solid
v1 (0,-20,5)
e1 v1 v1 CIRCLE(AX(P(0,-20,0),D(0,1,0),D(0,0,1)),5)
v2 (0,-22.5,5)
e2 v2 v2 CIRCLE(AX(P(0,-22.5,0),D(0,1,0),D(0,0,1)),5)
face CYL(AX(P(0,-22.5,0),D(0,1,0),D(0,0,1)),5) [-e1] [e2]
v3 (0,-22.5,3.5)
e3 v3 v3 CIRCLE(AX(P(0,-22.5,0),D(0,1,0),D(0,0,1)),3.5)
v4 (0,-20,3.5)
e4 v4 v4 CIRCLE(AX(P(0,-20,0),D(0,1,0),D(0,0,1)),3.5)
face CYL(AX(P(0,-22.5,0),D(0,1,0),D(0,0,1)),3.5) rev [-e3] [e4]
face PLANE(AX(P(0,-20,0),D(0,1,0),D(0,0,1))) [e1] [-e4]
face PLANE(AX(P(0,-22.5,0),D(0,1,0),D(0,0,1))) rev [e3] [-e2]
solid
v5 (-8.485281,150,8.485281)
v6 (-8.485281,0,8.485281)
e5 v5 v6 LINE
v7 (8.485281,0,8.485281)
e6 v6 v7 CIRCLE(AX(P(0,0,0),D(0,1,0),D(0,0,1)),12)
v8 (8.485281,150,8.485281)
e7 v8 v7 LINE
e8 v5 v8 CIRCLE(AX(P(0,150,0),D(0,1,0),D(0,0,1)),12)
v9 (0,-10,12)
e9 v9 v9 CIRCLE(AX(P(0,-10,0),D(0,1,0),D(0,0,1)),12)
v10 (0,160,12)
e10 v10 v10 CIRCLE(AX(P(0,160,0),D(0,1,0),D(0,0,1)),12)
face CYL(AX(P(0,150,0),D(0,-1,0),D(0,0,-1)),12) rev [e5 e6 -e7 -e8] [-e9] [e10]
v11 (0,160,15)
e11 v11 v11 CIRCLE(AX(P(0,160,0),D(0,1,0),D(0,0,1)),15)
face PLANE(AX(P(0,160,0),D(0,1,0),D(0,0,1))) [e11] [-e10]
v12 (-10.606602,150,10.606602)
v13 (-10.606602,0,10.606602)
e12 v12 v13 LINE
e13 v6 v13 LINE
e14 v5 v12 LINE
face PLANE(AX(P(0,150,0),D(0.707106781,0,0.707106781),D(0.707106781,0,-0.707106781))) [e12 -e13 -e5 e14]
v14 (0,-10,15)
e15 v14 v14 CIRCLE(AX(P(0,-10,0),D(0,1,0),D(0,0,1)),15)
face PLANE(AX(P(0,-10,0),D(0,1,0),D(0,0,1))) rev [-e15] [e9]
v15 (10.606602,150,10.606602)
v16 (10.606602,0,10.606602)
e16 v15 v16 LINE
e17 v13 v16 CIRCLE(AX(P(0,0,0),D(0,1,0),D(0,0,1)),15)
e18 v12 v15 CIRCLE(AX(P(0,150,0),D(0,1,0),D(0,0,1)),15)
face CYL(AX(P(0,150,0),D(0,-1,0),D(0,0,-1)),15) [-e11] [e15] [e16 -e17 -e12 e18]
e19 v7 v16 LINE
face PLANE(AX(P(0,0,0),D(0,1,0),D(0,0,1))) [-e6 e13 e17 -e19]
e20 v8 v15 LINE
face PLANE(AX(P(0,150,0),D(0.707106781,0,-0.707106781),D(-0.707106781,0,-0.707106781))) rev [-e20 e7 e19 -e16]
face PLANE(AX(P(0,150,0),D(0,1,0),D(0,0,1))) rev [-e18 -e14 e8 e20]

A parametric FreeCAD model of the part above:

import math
import FreeCAD as App
import Part
import Sketcher
from FreeCAD import Vector

doc = App.newDocument("Part")
body = doc.addObject("PartDesign::Body", "Body")

# Sketch on XZ plane
sketch1 = body.newObject("Sketcher::SketchObject", "Sketch")
sketch1.AttachmentSupport = (doc.getObject("XZ_Plane"), [""])
sketch1.MapMode = "FlatFace"
sketch1.addGeometry([
    Part.LineSegment(Vector(-10.606602, 10.606602, 0), Vector(-8.485281, 8.485281, 0)),  # 0
    Part.ArcOfCircle(Part.Circle(Vector(0, 0, 0), Vector(0, 0, 1), 12), math.radians(135), math.radians(360)),  # 1
    Part.ArcOfCircle(Part.Circle(Vector(0, 0, 0), Vector(0, 0, 1), 12), math.radians(0), math.radians(45)),  # 2
    Part.LineSegment(Vector(8.485281, 8.485281, 0), Vector(10.606602, 10.606602, 0)),  # 3
    Part.ArcOfCircle(Part.Circle(Vector(0, 0, 0), Vector(0, 0, 1), 15), math.radians(0), math.radians(45)),  # 4
    Part.ArcOfCircle(Part.Circle(Vector(0, 0, 0), Vector(0, 0, 1), 15), math.radians(135), math.radians(360)),  # 5
], False)
sketch1.addConstraint([
    Sketcher.Constraint("Coincident", 0, 2, 1, 1),
    Sketcher.Constraint("Tangent", 1, 2, 2, 1),
    Sketcher.Constraint("Coincident", 2, 2, 3, 1),
    Sketcher.Constraint("Coincident", 3, 2, 4, 2),
    Sketcher.Constraint("Tangent", 4, 1, 5, 2),
    Sketcher.Constraint("Coincident", 5, 1, 0, 1),
    Sketcher.Constraint("Coincident", 1, 3, -1, 1),
    Sketcher.Constraint("Coincident", 4, 3, -1, 1),
    Sketcher.Constraint("Equal", 1, 2),
    Sketcher.Constraint("Equal", 4, 5),
    Sketcher.Constraint("PointOnObject", 1, 2, -1),
    Sketcher.Constraint("PointOnObject", 4, 1, -1),
    Sketcher.Constraint("Perpendicular", 0, 3),
    Sketcher.Constraint("Horizontal", 0, 2, 2, 2),
    Sketcher.Constraint("Horizontal", 3, 2, 5, 1),
    Sketcher.Constraint("Radius", 1, 12.0),
    Sketcher.Constraint("Radius", 4, 15.0),
    Sketcher.Constraint("DistanceX", -1, 1, 3, 2, 10.606602),
])
pad1 = body.newObject("PartDesign::Pad", "Pad")
pad1.Profile = sketch1
pad1.Length = 150
pad1.Reversed = True

# Sketch on XZ plane
sketch2 = body.newObject("Sketcher::SketchObject", "Sketch001")
sketch2.AttachmentSupport = (doc.getObject("XZ_Plane"), [""])
sketch2.MapMode = "FlatFace"
sketch2.addGeometry([
    Part.ArcOfCircle(Part.Circle(Vector(0, 0, 0), Vector(0, 0, 1), 15), math.radians(45), math.radians(135)),  # 0
    Part.ArcOfCircle(Part.Circle(Vector(0, 0, 0), Vector(0, 0, 1), 15), math.radians(0), math.radians(45)),  # 1
    Part.ArcOfCircle(Part.Circle(Vector(0, 0, 0), Vector(0, 0, 1), 15), math.radians(135), math.radians(360)),  # 2
    Part.ArcOfCircle(Part.Circle(Vector(0, 0, 0), Vector(0, 0, 1), 12), math.radians(45), math.radians(135)),  # 3
    Part.ArcOfCircle(Part.Circle(Vector(0, 0, 0), Vector(0, 0, 1), 12), math.radians(135), math.radians(360)),  # 4
    Part.ArcOfCircle(Part.Circle(Vector(0, 0, 0), Vector(0, 0, 1), 12), math.radians(0), math.radians(45)),  # 5
], False)
sketch2.addConstraint([
    Sketcher.Constraint("Tangent", 0, 1, 1, 2),
    Sketcher.Constraint("Tangent", 1, 1, 2, 2),
    Sketcher.Constraint("Tangent", 2, 1, 0, 2),
    Sketcher.Constraint("Tangent", 3, 2, 4, 1),
    Sketcher.Constraint("Tangent", 4, 2, 5, 1),
    Sketcher.Constraint("Tangent", 5, 2, 3, 1),
    Sketcher.Constraint("Coincident", 0, 3, -1, 1),
    Sketcher.Constraint("Coincident", 3, 3, -1, 1),
    Sketcher.Constraint("PointOnObject", 1, 1, -1),
    Sketcher.Constraint("PointOnObject", 4, 2, -1),
    Sketcher.Constraint("Horizontal", 0, 1, 2, 1),
    Sketcher.Constraint("Horizontal", 3, 2, 5, 2),
    Sketcher.Constraint("Radius", 0, 15.0),
    Sketcher.Constraint("Radius", 3, 12.0),
    Sketcher.Constraint("DistanceX", -1, 1, 0, 1, 10.606602),
    Sketcher.Constraint("DistanceX", 3, 2, -1, 1, 8.485281),
])
pad2 = body.newObject("PartDesign::Pad", "Pad001")
pad2.Profile = sketch2
pad2.Length = 10

# Sketch on XZ plane
sketch3 = body.newObject("Sketcher::SketchObject", "Sketch002")
sketch3.AttachmentSupport = (doc.getObject("XZ_Plane"), [""])
sketch3.MapMode = "FlatFace"
sketch3.AttachmentOffset = App.Placement(Vector(0, 0, -150), App.Rotation())
sketch3.addGeometry([
    Part.ArcOfCircle(Part.Circle(Vector(0, 0, 0), Vector(0, 0, 1), 15), math.radians(45), math.radians(135)),  # 0
    Part.ArcOfCircle(Part.Circle(Vector(0, 0, 0), Vector(0, 0, 1), 15), math.radians(0), math.radians(45)),  # 1
    Part.ArcOfCircle(Part.Circle(Vector(0, 0, 0), Vector(0, 0, 1), 15), math.radians(135), math.radians(360)),  # 2
    Part.ArcOfCircle(Part.Circle(Vector(0, 0, 0), Vector(0, 0, 1), 12), math.radians(45), math.radians(135)),  # 3
    Part.ArcOfCircle(Part.Circle(Vector(0, 0, 0), Vector(0, 0, 1), 12), math.radians(135), math.radians(360)),  # 4
    Part.ArcOfCircle(Part.Circle(Vector(0, 0, 0), Vector(0, 0, 1), 12), math.radians(0), math.radians(45)),  # 5
], False)
sketch3.addConstraint([
    Sketcher.Constraint("Tangent", 0, 1, 1, 2),
    Sketcher.Constraint("Tangent", 1, 1, 2, 2),
    Sketcher.Constraint("Tangent", 2, 1, 0, 2),
    Sketcher.Constraint("Tangent", 3, 2, 4, 1),
    Sketcher.Constraint("Tangent", 4, 2, 5, 1),
    Sketcher.Constraint("Tangent", 5, 2, 3, 1),
    Sketcher.Constraint("Coincident", 0, 3, -1, 1),
    Sketcher.Constraint("Coincident", 3, 3, -1, 1),
    Sketcher.Constraint("PointOnObject", 1, 1, -1),
    Sketcher.Constraint("PointOnObject", 4, 2, -1),
    Sketcher.Constraint("Horizontal", 0, 1, 2, 1),
    Sketcher.Constraint("Horizontal", 3, 2, 5, 2),
    Sketcher.Constraint("Radius", 0, 15.0),
    Sketcher.Constraint("Radius", 3, 12.0),
    Sketcher.Constraint("DistanceX", -1, 1, 0, 1, 10.606602),
    Sketcher.Constraint("DistanceX", 3, 2, -1, 1, 8.485281),
])
pad3 = body.newObject("PartDesign::Pad", "Pad002")
pad3.Profile = sketch3
pad3.Length = 10
pad3.Reversed = True
body2 = doc.addObject("PartDesign::Body", "Body001")

# Sketch on XZ plane
sketch4 = body2.newObject("Sketcher::SketchObject", "Sketch003")
sketch4.AttachmentSupport = (doc.getObject("XZ_Plane001"), [""])
sketch4.MapMode = "FlatFace"
sketch4.AttachmentOffset = App.Placement(Vector(0, 0, 20), App.Rotation())
sketch4.addGeometry([
    Part.Circle(Vector(0, 0, 0), Vector(0, 0, 1), 5),
    Part.Circle(Vector(0, 0, 0), Vector(0, 0, 1), 3.5),
], False)
sketch4.addConstraint([
    Sketcher.Constraint("Coincident", 0, 3, -1, 1),
    Sketcher.Constraint("Coincident", 1, 3, -1, 1),
    Sketcher.Constraint("Diameter", 0, 10.0),
    Sketcher.Constraint("Diameter", 1, 7.0),
])
pad4 = body2.newObject("PartDesign::Pad", "Pad003")
pad4.Profile = sketch4
pad4.Length = 2.5

doc.recompute()
